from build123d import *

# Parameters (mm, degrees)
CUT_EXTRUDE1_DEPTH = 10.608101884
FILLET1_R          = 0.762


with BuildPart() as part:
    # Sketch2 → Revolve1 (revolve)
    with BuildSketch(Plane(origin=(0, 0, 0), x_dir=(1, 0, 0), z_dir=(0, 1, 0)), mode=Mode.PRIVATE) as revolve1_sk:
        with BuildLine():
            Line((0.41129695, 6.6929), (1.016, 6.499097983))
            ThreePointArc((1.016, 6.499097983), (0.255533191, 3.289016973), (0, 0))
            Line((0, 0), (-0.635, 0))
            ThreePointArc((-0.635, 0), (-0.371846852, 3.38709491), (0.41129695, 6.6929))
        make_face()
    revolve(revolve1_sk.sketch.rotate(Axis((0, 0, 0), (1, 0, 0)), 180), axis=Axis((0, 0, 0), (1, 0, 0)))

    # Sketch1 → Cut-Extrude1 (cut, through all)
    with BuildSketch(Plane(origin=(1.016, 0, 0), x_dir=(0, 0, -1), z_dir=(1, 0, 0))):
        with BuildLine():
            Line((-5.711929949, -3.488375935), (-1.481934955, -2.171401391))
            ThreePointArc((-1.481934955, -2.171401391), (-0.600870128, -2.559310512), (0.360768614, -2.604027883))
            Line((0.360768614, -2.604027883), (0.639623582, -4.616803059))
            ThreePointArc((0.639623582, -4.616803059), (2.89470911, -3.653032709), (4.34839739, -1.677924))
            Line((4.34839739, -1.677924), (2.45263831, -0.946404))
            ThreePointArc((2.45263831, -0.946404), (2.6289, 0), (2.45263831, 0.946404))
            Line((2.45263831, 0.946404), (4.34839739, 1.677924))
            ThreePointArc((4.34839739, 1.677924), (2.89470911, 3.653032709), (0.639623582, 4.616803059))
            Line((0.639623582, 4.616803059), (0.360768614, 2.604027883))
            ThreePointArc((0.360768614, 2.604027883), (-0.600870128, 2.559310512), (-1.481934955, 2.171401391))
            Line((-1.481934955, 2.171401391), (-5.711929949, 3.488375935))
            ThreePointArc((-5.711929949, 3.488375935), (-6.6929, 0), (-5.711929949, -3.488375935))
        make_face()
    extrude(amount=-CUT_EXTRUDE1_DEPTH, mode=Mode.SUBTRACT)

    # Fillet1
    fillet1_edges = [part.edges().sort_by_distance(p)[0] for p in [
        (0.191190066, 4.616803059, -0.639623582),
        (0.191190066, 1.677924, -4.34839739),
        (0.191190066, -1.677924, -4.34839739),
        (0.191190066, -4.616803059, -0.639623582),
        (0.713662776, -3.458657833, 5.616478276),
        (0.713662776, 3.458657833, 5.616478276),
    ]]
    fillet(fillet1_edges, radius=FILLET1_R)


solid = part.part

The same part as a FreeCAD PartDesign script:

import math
import FreeCAD as App
import Part
import Sketcher
from FreeCAD import Vector
Q = App.Units.Quantity


def edges_at(feature, points):
    """Names of the edges that pass closest to the given points."""
    edges = feature.Shape.Edges
    near = lambda p: min(range(len(edges)), key=lambda i: edges[i].distToShape(Part.Vertex(*p))[0])
    return sorted({f"Edge{near(p) + 1}" for p in points})

doc = App.newDocument("Part")
body = doc.addObject("PartDesign::Body", "Body")

sketch1 = body.newObject("Sketcher::SketchObject", "Sketch")
sketch1.AttachmentSupport = (doc.getObject("XZ_Plane"), [""])
sketch1.MapMode = "FlatFace"
sketch1.addGeometry(Part.LineSegment(Vector(1, -6.5, 0), Vector(0.4, -6.7, 0)), False)
sketch1.addGeometry(Part.ArcOfCircle(Part.Circle(Vector(21.3, 0, 0), Vector(0, 0, 1), 21.9), math.radians(-180), math.radians(-162.23)), False)
sketch1.addGeometry(Part.LineSegment(Vector(-0.6, 0, 0), Vector(0, 0, 0)), False)
sketch1.addGeometry(Part.ArcOfCircle(Part.Circle(Vector(21.3, 0, 0), Vector(0, 0, 1), 21.3), math.radians(-180), math.radians(-162.23)), False)
sketch1.addConstraint(Sketcher.Constraint("Coincident", 0, 2, 1, 2))
sketch1.addConstraint(Sketcher.Constraint("Coincident", 1, 1, 2, 1))
sketch1.addConstraint(Sketcher.Constraint("Coincident", 2, 2, 3, 1))
sketch1.addConstraint(Sketcher.Constraint("Coincident", 3, 2, 0, 1))
sketch1.addConstraint(Sketcher.Constraint("Horizontal", 2))
sketch1.addConstraint(Sketcher.Constraint("Coincident", 2, 2, -1, 1))
sketch1.addConstraint(Sketcher.Constraint("Coincident", 3, 3, 1, 3))
sketch1.addConstraint(Sketcher.Constraint("PointOnObject", 1, 3, -1))
sketch1.addConstraint(Sketcher.Constraint("DistanceX", 2, 1, 2, 2, Q("0.025 in")))
sketch1.addConstraint(Sketcher.Constraint("DistanceX", -1, 1, 3, 2, Q("0.04 in")))
sketch1.addConstraint(Sketcher.Constraint("DistanceY", 0, 2, -1, 1, Q("0.2635 in")))
sketch1.addConstraint(Sketcher.Constraint("Radius", 1, Q("21.929553 mm")))
revolution = body.newObject("PartDesign::Revolution", "Revolution")
revolution.Profile = sketch1
revolution.ReferenceAxis = (sketch1, ["H_Axis"])
revolution.Angle = 360

sketch2 = body.newObject("Sketcher::SketchObject", "Sketch001")
sketch2.AttachmentSupport = (doc.getObject("YZ_Plane"), [""])
sketch2.MapMode = "FlatFace"
sketch2.AttachmentOffset = App.Placement(Vector(0, 0, 0.04 * 25.4), App.Rotation())
sketch2.addGeometry(Part.LineSegment(Vector(-3.5, 5.7, 0), Vector(-2.2, 1.5, 0)), False)
sketch2.addGeometry(Part.ArcOfCircle(Part.Circle(Vector(0, 0, 0), Vector(0, 0, 1), 2.6), math.radians(146), math.radians(188)), False)
sketch2.addGeometry(Part.LineSegment(Vector(-2.6, -0.4, 0), Vector(-4.6, -0.6, 0)), False)
sketch2.addGeometry(Part.ArcOfCircle(Part.Circle(Vector(0, 0, 0), Vector(0, 0, 1), 4.7), math.radians(-172), math.radians(-111)), False)
sketch2.addGeometry(Part.LineSegment(Vector(-1.7, -4.3, 0), Vector(-0.9, -2.5, 0)), False)
sketch2.addGeometry(Part.ArcOfCircle(Part.Circle(Vector(0, 0, 0), Vector(0, 0, 1), 2.6), math.radians(-111), math.radians(-69)), False)
sketch2.addGeometry(Part.LineSegment(Vector(0.9, -2.5, 0), Vector(1.7, -4.3, 0)), False)
sketch2.addGeometry(Part.ArcOfCircle(Part.Circle(Vector(0, 0, 0), Vector(0, 0, 1), 4.7), math.radians(-69), math.radians(-8)), False)
sketch2.addGeometry(Part.LineSegment(Vector(4.6, -0.6, 0), Vector(2.6, -0.4, 0)), False)
sketch2.addGeometry(Part.ArcOfCircle(Part.Circle(Vector(0, 0, 0), Vector(0, 0, 1), 2.6), math.radians(-8), math.radians(34)), False)
sketch2.addGeometry(Part.LineSegment(Vector(2.2, 1.5, 0), Vector(3.5, 5.7, 0)), False)
sketch2.addGeometry(Part.ArcOfCircle(Part.Circle(Vector(0, 0, 0), Vector(0, 0, 1), 6.7), math.radians(59), math.radians(121)), False)
sketch2.addConstraint(Sketcher.Constraint("Coincident", 0, 2, 1, 1))
sketch2.addConstraint(Sketcher.Constraint("Coincident", 1, 2, 2, 1))
sketch2.addConstraint(Sketcher.Constraint("Coincident", 2, 2, 3, 1))
sketch2.addConstraint(Sketcher.Constraint("Coincident", 3, 2, 4, 1))
sketch2.addConstraint(Sketcher.Constraint("Coincident", 4, 2, 5, 1))
sketch2.addConstraint(Sketcher.Constraint("Coincident", 5, 2, 6, 1))
sketch2.addConstraint(Sketcher.Constraint("Coincident", 6, 2, 7, 1))
sketch2.addConstraint(Sketcher.Constraint("Coincident", 7, 2, 8, 1))
sketch2.addConstraint(Sketcher.Constraint("Coincident", 8, 2, 9, 1))
sketch2.addConstraint(Sketcher.Constraint("Coincident", 9, 2, 10, 1))
sketch2.addConstraint(Sketcher.Constraint("Coincident", 10, 2, 11, 1))
sketch2.addConstraint(Sketcher.Constraint("Coincident", 11, 2, 0, 1))
sketch2.addConstraint(Sketcher.Constraint("Coincident", 1, 3, -1, 1))
sketch2.addConstraint(Sketcher.Constraint("Coincident", 3, 3, -1, 1))
sketch2.addConstraint(Sketcher.Constraint("Coincident", 5, 3, -1, 1))
sketch2.addConstraint(Sketcher.Constraint("Coincident", 7, 3, -1, 1))
sketch2.addConstraint(Sketcher.Constraint("Coincident", 9, 3, -1, 1))
sketch2.addConstraint(Sketcher.Constraint("Coincident", 11, 3, -1, 1))
sketch2.addConstraint(Sketcher.Constraint("Equal", 1, 5))
sketch2.addConstraint(Sketcher.Constraint("Equal", 3, 7))
sketch2.addConstraint(Sketcher.Constraint("Equal", 5, 9))
sketch2.addConstraint(Sketcher.Constraint("Horizontal", 4, 2, 5, 2))
sketch2.addConstraint(Sketcher.Constraint("Horizontal", 3, 2, 6, 2))
sketch2.addConstraint(Sketcher.Constraint("Horizontal", 2, 2, 7, 2))
sketch2.addConstraint(Sketcher.Constraint("Horizontal", 1, 2, 8, 2))
sketch2.addConstraint(Sketcher.Constraint("Horizontal", 0, 2, 9, 2))
sketch2.addConstraint(Sketcher.Constraint("Horizontal", 10, 2, 11, 2))
sketch2.addConstraint(Sketcher.Constraint("Radius", 1, Q("0.1035 in")))
sketch2.addConstraint(Sketcher.Constraint("Radius", 3, Q("0.1835 in")))
sketch2.addConstraint(Sketcher.Constraint("Radius", 11, Q("0.2635 in")))
sketch2.addConstraint(Sketcher.Constraint("DistanceX", 3, 2, 4, 2, Q("0.0288 in")))
sketch2.addConstraint(Sketcher.Constraint("DistanceX", 0, 2, -1, 1, Q("2.171401 mm")))
sketch2.addConstraint(Sketcher.Constraint("DistanceX", 2, 2, 0, 2, Q("2.445402 mm")))
sketch2.addConstraint(Sketcher.Constraint("DistanceX", 5, 2, 7, 2, Q("3.670399 mm")))
sketch2.addConstraint(Sketcher.Constraint("DistanceY", 8, 2, 10, 2, Q("6.072699 mm")))
sketch2.addConstraint(Sketcher.Constraint("Distance", 0, Q("4.430269 mm")))
pocket1 = body.newObject("PartDesign::Pocket", "Pocket")
pocket1.Profile = sketch2
pocket1.Type = "ThroughAll"
doc.recompute()

fillet = body.newObject("PartDesign::Fillet", "Fillet")
fillet.Base = (pocket1, edges_at(pocket1, [
    (0.191, 4.617, -0.64),
    (0.191, 1.678, -4.348),
    (0.191, -1.678, -4.348),
    (0.191, -4.617, -0.64),
    (0.714, -3.459, 5.616),
    (0.714, 3.459, 5.616),
]))
fillet.Radius = Q("0.03 in")

doc.recompute()
